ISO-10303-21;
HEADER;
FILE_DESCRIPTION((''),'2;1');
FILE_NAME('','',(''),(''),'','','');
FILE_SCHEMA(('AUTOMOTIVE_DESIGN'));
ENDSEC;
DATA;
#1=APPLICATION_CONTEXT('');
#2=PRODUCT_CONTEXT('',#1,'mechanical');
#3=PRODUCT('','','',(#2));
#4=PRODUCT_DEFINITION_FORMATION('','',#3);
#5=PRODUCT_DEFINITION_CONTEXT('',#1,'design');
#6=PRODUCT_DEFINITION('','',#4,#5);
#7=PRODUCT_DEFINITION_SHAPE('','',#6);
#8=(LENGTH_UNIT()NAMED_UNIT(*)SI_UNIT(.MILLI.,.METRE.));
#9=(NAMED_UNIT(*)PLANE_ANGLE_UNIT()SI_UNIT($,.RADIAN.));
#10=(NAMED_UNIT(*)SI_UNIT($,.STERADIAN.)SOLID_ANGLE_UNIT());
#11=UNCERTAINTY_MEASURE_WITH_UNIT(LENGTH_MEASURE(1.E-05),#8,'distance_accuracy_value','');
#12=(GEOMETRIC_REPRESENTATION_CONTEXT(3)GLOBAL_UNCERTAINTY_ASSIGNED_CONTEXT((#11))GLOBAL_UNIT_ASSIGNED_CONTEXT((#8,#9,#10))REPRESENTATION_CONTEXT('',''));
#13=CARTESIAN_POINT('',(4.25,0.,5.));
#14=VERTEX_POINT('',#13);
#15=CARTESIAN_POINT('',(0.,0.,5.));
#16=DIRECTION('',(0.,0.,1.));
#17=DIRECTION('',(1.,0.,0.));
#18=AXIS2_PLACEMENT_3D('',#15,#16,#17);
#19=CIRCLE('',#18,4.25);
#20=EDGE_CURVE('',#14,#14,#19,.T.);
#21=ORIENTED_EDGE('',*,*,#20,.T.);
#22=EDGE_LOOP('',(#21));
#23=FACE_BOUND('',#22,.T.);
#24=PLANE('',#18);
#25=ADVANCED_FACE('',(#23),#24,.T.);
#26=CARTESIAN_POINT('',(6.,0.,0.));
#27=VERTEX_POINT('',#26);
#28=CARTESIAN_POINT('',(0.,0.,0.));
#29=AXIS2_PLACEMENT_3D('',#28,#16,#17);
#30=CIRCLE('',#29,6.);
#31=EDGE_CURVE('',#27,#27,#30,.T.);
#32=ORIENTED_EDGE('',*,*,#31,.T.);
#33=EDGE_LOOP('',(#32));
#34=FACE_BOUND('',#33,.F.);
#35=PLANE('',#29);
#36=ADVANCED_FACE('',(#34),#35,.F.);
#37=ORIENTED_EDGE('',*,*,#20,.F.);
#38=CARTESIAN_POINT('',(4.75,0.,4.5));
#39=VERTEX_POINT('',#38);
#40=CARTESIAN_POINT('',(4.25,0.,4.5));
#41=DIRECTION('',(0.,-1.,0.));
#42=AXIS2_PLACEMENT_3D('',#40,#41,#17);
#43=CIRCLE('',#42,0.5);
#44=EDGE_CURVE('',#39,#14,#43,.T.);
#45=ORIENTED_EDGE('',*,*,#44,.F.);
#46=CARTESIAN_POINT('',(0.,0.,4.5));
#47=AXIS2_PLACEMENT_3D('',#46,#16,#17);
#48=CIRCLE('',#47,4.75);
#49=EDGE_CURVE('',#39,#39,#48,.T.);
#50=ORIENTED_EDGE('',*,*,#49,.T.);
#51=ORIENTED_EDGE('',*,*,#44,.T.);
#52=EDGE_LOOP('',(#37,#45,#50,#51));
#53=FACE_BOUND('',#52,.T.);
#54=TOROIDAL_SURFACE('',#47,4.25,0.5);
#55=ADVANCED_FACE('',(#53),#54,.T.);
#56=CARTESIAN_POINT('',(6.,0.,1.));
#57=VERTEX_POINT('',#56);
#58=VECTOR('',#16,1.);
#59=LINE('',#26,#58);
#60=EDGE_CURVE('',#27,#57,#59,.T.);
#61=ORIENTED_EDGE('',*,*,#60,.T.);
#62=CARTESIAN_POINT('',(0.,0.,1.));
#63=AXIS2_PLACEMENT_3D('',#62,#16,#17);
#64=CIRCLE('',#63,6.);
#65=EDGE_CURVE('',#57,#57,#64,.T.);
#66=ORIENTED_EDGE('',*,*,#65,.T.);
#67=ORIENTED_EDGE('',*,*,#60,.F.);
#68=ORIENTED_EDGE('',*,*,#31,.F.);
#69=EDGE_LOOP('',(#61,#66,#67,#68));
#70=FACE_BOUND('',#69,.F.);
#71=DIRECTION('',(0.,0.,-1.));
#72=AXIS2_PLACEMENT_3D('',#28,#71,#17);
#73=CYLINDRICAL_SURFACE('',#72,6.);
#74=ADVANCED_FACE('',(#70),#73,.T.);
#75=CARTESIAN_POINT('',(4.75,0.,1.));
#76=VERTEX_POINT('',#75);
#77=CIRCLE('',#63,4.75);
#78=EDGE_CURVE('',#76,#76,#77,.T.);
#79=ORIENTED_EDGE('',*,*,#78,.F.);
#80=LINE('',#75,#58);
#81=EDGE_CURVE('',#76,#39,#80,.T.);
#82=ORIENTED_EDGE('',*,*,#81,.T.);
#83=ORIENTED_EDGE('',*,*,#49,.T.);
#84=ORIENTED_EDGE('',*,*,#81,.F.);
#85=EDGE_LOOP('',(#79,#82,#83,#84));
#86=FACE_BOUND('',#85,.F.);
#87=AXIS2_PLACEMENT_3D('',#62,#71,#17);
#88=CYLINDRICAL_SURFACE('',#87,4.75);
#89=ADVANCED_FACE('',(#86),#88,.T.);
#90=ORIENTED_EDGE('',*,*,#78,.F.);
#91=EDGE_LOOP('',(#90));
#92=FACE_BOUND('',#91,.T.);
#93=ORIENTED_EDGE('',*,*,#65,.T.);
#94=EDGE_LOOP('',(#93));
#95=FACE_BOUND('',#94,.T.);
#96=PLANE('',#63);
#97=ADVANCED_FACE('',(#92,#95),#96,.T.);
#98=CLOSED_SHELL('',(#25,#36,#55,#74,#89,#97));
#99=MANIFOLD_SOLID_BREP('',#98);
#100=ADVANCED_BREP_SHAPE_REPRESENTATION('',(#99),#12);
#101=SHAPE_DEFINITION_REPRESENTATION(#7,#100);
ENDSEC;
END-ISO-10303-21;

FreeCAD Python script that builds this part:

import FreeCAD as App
import Part
import Sketcher
Q = App.Units.Quantity


def edges_at(feature, points):
    """Names of the edges that pass closest to the given points."""
    edges = feature.Shape.Edges
    near = lambda p: min(range(len(edges)), key=lambda i: edges[i].distToShape(Part.Vertex(*p))[0])
    return sorted({f"Edge{near(p) + 1}" for p in points})

doc = App.newDocument("Part")
params = doc.addObject("Spreadsheet::Sheet", "Params")
for row, (alias, value) in enumerate([
    ("sketch1_diameter", "12 mm"),
    ("pad1_length", "1 mm"),
    ("sketch2_diameter", "9.5 mm"),
    ("pad2_length", "4 mm"),
    ("fillet_radius", "0.5 mm"),
], start=1):
    params.set(f"A{row}", alias)
    params.set(f"B{row}", "=" + value)
    params.setAlias(f"B{row}", alias)

body = doc.addObject("PartDesign::Body", "Body")

sketch1 = body.newObject("Sketcher::SketchObject", "Sketch")
sketch1.AttachmentSupport = (doc.getObject("XY_Plane"), [""])
sketch1.MapMode = "FlatFace"
sketch1.addGeometry(Part.Circle(App.Vector(0, 0, 0), App.Vector(0, 0, 1), 6), False)
sketch1.addConstraint([
    Sketcher.Constraint("Coincident", 0, 3, -1, 1),
    Sketcher.Constraint("Diameter", 0, Q("12 mm")),
])
sketch1.setExpression("Constraints[1]", "Params.sketch1_diameter")
pad1 = body.newObject("PartDesign::Pad", "Pad")
pad1.Profile = sketch1
pad1.setExpression("Length", "Params.pad1_length")

sketch2 = body.newObject("Sketcher::SketchObject", "Sketch001")
sketch2.AttachmentSupport = (doc.getObject("XY_Plane"), [""])
sketch2.MapMode = "FlatFace"
sketch2.AttachmentOffset = App.Placement(App.Vector(0, 0, 1), App.Rotation())
sketch2.addGeometry(Part.Circle(App.Vector(0, 0, 0), App.Vector(0, 0, 1), 4.75), False)
sketch2.addConstraint([
    Sketcher.Constraint("Coincident", 0, 3, -1, 1),
    Sketcher.Constraint("Diameter", 0, Q("9.5 mm")),
])
sketch2.setExpression("Constraints[1]", "Params.sketch2_diameter")
pad2 = body.newObject("PartDesign::Pad", "Pad001")
pad2.Profile = sketch2
pad2.setExpression("Length", "Params.pad2_length")
doc.recompute()

fillet = body.newObject("PartDesign::Fillet", "Fillet")
fillet.Base = (pad2, edges_at(pad2, [(-4.75, 0, 5)]))
fillet.setExpression("Radius", "Params.fillet_radius")

doc.recompute()
